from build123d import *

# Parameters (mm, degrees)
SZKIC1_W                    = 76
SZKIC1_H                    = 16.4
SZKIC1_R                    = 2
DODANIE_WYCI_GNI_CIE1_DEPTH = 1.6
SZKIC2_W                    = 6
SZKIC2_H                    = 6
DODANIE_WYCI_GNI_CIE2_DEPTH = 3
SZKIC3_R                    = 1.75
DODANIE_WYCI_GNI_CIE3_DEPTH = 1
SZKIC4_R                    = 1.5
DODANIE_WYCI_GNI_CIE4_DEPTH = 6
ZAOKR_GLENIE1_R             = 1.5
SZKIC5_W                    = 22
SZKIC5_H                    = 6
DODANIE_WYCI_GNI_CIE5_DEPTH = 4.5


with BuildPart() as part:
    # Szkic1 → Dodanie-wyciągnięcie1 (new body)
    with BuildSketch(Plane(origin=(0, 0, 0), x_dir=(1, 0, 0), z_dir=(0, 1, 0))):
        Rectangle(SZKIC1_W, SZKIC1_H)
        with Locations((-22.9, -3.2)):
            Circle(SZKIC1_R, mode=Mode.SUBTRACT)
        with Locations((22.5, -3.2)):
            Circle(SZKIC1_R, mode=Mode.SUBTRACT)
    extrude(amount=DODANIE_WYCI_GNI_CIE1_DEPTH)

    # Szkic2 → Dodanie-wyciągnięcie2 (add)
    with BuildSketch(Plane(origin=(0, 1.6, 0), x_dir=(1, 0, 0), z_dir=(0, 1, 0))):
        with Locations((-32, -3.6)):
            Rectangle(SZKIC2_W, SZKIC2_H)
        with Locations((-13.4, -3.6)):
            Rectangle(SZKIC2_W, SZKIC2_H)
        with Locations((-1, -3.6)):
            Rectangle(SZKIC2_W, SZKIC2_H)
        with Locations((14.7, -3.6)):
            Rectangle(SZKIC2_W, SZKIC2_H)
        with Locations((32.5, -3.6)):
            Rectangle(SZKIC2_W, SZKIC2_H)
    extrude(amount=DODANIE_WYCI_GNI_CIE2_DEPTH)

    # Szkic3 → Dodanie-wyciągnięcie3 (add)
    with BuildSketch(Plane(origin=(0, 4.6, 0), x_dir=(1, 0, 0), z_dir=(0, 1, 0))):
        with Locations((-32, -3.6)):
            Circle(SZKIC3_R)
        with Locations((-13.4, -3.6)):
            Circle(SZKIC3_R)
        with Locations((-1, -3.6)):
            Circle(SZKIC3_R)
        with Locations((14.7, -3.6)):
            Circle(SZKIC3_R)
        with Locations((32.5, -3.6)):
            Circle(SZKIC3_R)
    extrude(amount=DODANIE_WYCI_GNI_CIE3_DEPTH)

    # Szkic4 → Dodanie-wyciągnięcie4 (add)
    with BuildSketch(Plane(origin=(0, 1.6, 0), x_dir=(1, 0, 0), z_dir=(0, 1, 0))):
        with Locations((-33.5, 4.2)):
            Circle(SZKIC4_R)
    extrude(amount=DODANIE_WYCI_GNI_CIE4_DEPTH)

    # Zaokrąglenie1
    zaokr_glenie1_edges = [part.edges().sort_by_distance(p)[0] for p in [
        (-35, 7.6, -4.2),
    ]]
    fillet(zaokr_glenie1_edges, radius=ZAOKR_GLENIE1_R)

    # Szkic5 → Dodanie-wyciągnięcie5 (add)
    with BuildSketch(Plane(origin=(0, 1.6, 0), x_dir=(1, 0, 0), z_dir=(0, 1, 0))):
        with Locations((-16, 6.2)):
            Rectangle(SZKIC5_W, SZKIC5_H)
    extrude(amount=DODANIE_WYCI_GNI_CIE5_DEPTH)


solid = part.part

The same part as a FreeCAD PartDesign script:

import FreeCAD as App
import Part
import Sketcher
from FreeCAD import Vector


def edges_at(feature, points):
    """Names of the edges that pass closest to the given points."""
    edges = feature.Shape.Edges
    near = lambda p: min(range(len(edges)), key=lambda i: edges[i].distToShape(Part.Vertex(*p))[0])
    return sorted({f"Edge{near(p) + 1}" for p in points})


def add_polygon(sketch, points):
    """Adds a closed chain of lines whose ends are joined by coincident constraints."""
    first, n = sketch.GeometryCount, len(points)
    for a, b in zip(points, points[1:] + points[:1]):
        sketch.addGeometry(Part.LineSegment(App.Vector(*a, 0), App.Vector(*b, 0)), False)
    for i in range(n):
        sketch.addConstraint(Sketcher.Constraint("Coincident", first + i, 2, first + (i + 1) % n, 1))

doc = App.newDocument("Part")
body = doc.addObject("PartDesign::Body", "Body")

# Sketch on XZ plane
sketch1 = body.newObject("Sketcher::SketchObject", "Sketch")
sketch1.AttachmentSupport = (doc.getObject("XZ_Plane"), [""])
sketch1.MapMode = "FlatFace"
add_polygon(sketch1, [(-38, -8.2), (-38, 8.2), (38, 8.2), (38, -8.2)])  # lines 0-3
sketch1.addGeometry(Part.Circle(Vector(-22.9, 3.2, 0), Vector(0, 0, 1), 2), False)  # 4
sketch1.addGeometry(Part.Circle(Vector(22.5, 3.2, 0), Vector(0, 0, 1), 2), False)  # 5
sketch1.addConstraint(Sketcher.Constraint("Vertical", 0))
sketch1.addConstraint(Sketcher.Constraint("Horizontal", 1))
sketch1.addConstraint(Sketcher.Constraint("Vertical", 2))
sketch1.addConstraint(Sketcher.Constraint("Horizontal", 3))
sketch1.addConstraint(Sketcher.Constraint("Equal", 4, 5))
sketch1.addConstraint(Sketcher.Constraint("Symmetric", 0, 2, 2, 2, -1, 1))
sketch1.addConstraint(Sketcher.Constraint("Horizontal", 4, 3, 5, 3))
sketch1.addConstraint(Sketcher.Constraint("Diameter", 4, 4.0))
sketch1.addConstraint(Sketcher.Constraint("DistanceX", 1, 1, 1, 2, 76.0))
sketch1.addConstraint(Sketcher.Constraint("DistanceY", 0, 1, 0, 2, 16.4))
sketch1.addConstraint(Sketcher.Constraint("DistanceY", 4, 3, 0, 2, 5.0))
sketch1.addConstraint(Sketcher.Constraint("DistanceX", 4, 3, -1, 1, 22.9))
sketch1.addConstraint(Sketcher.Constraint("DistanceX", -1, 1, 5, 3, 22.5))
pad1 = body.newObject("PartDesign::Pad", "Pad")
pad1.Profile = sketch1
pad1.Length = 1.6
pad1.Reversed = True

# Sketch on XZ plane
sketch2 = body.newObject("Sketcher::SketchObject", "Sketch001")
sketch2.AttachmentSupport = (doc.getObject("XZ_Plane"), [""])
sketch2.MapMode = "FlatFace"
sketch2.AttachmentOffset = App.Placement(Vector(0, 0, -1.6), App.Rotation())
add_polygon(sketch2, [(-35, 0.6), (-35, 6.6), (-29, 6.6), (-29, 0.6)])  # lines 0-3
add_polygon(sketch2, [(-16.4, 0.6), (-16.4, 6.6), (-10.4, 6.6), (-10.4, 0.6)])  # lines 4-7
add_polygon(sketch2, [(-4, 0.6), (-4, 6.6), (2, 6.6), (2, 0.6)])  # lines 8-11
add_polygon(sketch2, [(11.7, 0.6), (11.7, 6.6), (17.7, 6.6), (17.7, 0.6)])  # lines 12-15
add_polygon(sketch2, [(29.5, 0.6), (29.5, 6.6), (35.5, 6.6), (35.5, 0.6)])  # lines 16-19
sketch2.addConstraint(Sketcher.Constraint("Vertical", 0))
sketch2.addConstraint(Sketcher.Constraint("Horizontal", 1))
sketch2.addConstraint(Sketcher.Constraint("Vertical", 2))
sketch2.addConstraint(Sketcher.Constraint("Horizontal", 3))
sketch2.addConstraint(Sketcher.Constraint("Vertical", 4))
sketch2.addConstraint(Sketcher.Constraint("Horizontal", 5))
sketch2.addConstraint(Sketcher.Constraint("Vertical", 6))
sketch2.addConstraint(Sketcher.Constraint("Horizontal", 7))
sketch2.addConstraint(Sketcher.Constraint("Vertical", 8))
sketch2.addConstraint(Sketcher.Constraint("Horizontal", 9))
sketch2.addConstraint(Sketcher.Constraint("Vertical", 10))
sketch2.addConstraint(Sketcher.Constraint("Horizontal", 11))
sketch2.addConstraint(Sketcher.Constraint("Vertical", 12))
sketch2.addConstraint(Sketcher.Constraint("Horizontal", 13))
sketch2.addConstraint(Sketcher.Constraint("Vertical", 14))
sketch2.addConstraint(Sketcher.Constraint("Horizontal", 15))
sketch2.addConstraint(Sketcher.Constraint("Vertical", 16))
sketch2.addConstraint(Sketcher.Constraint("Horizontal", 17))
sketch2.addConstraint(Sketcher.Constraint("Vertical", 18))
sketch2.addConstraint(Sketcher.Constraint("Horizontal", 19))
sketch2.addConstraint(Sketcher.Constraint("Horizontal", 1, 2, 4, 2))
sketch2.addConstraint(Sketcher.Constraint("Horizontal", 3, 2, 6, 2))
sketch2.addConstraint(Sketcher.Constraint("Horizontal", 5, 2, 8, 2))
sketch2.addConstraint(Sketcher.Constraint("Horizontal", 7, 2, 10, 2))
sketch2.addConstraint(Sketcher.Constraint("Horizontal", 9, 2, 12, 2))
sketch2.addConstraint(Sketcher.Constraint("Horizontal", 11, 2, 14, 2))
sketch2.addConstraint(Sketcher.Constraint("Horizontal", 13, 2, 16, 2))
sketch2.addConstraint(Sketcher.Constraint("Horizontal", 15, 2, 18, 2))
sketch2.addConstraint(Sketcher.Constraint("Equal", 3, 5))
sketch2.addConstraint(Sketcher.Constraint("Equal", 7, 9))
sketch2.addConstraint(Sketcher.Constraint("Equal", 11, 13))
sketch2.addConstraint(Sketcher.Constraint("Equal", 15, 17))
sketch2.addConstraint(Sketcher.Constraint("Equal", 19, 0))
sketch2.addConstraint(Sketcher.Constraint("DistanceX", 1, 1, 1, 2, 6.0))
sketch2.addConstraint(Sketcher.Constraint("DistanceX", 0, 2, -1, 1, 35.0))
sketch2.addConstraint(Sketcher.Constraint("DistanceX", 8, 2, -1, 1, 4.0))
sketch2.addConstraint(Sketcher.Constraint("DistanceY", -1, 1, 0, 2, 6.6))
sketch2.addConstraint(Sketcher.Constraint("DistanceX", 4, 2, -1, 1, 16.4))
sketch2.addConstraint(Sketcher.Constraint("DistanceX", -1, 1, 12, 2, 11.7))
sketch2.addConstraint(Sketcher.Constraint("DistanceX", -1, 1, 16, 2, 29.5))
pad2 = body.newObject("PartDesign::Pad", "Pad001")
pad2.Profile = sketch2
pad2.Length = 3
pad2.Reversed = True

# Sketch on XZ plane
sketch3 = body.newObject("Sketcher::SketchObject", "Sketch002")
sketch3.AttachmentSupport = (doc.getObject("XZ_Plane"), [""])
sketch3.MapMode = "FlatFace"
sketch3.AttachmentOffset = App.Placement(Vector(0, 0, -4.6), App.Rotation())
sketch3.addGeometry(Part.Circle(Vector(-32, 3.6, 0), Vector(0, 0, 1), 1.75), False)
sketch3.addGeometry(Part.Circle(Vector(-13.4, 3.6, 0), Vector(0, 0, 1), 1.75), False)
sketch3.addGeometry(Part.Circle(Vector(-1, 3.6, 0), Vector(0, 0, 1), 1.75), False)
sketch3.addGeometry(Part.Circle(Vector(14.7, 3.6, 0), Vector(0, 0, 1), 1.75), False)
sketch3.addGeometry(Part.Circle(Vector(32.5, 3.6, 0), Vector(0, 0, 1), 1.75), False)
sketch3.addConstraint(Sketcher.Constraint("Equal", 0, 1))
sketch3.addConstraint(Sketcher.Constraint("Equal", 1, 2))
sketch3.addConstraint(Sketcher.Constraint("Equal", 2, 3))
sketch3.addConstraint(Sketcher.Constraint("Equal", 3, 4))
sketch3.addConstraint(Sketcher.Constraint("Horizontal", 0, 3, 1, 3))
sketch3.addConstraint(Sketcher.Constraint("Horizontal", 1, 3, 2, 3))
sketch3.addConstraint(Sketcher.Constraint("Horizontal", 2, 3, 3, 3))
sketch3.addConstraint(Sketcher.Constraint("Horizontal", 3, 3, 4, 3))
sketch3.addConstraint(Sketcher.Constraint("Diameter", 0, 3.5))
sketch3.addConstraint(Sketcher.Constraint("DistanceX", 0, 3, -1, 1, 32.0))
sketch3.addConstraint(Sketcher.Constraint("DistanceX", 2, 3, -1, 1, 1.0))
sketch3.addConstraint(Sketcher.Constraint("DistanceY", -1, 1, 0, 3, 3.6))
sketch3.addConstraint(Sketcher.Constraint("DistanceX", 1, 3, -1, 1, 13.4))
sketch3.addConstraint(Sketcher.Constraint("DistanceX", -1, 1, 3, 3, 14.7))
sketch3.addConstraint(Sketcher.Constraint("DistanceX", -1, 1, 4, 3, 32.5))
pad3 = body.newObject("PartDesign::Pad", "Pad002")
pad3.Profile = sketch3
pad3.Length = 1
pad3.Reversed = True

# Sketch on XZ plane
sketch4 = body.newObject("Sketcher::SketchObject", "Sketch003")
sketch4.AttachmentSupport = (doc.getObject("XZ_Plane"), [""])
sketch4.MapMode = "FlatFace"
sketch4.AttachmentOffset = App.Placement(Vector(0, 0, -1.6), App.Rotation())
sketch4.addGeometry(Part.Circle(Vector(-33.5, -4.2, 0), Vector(0, 0, 1), 1.5), False)
sketch4.addConstraint(Sketcher.Constraint("Diameter", 0, 3.0))
sketch4.addConstraint(Sketcher.Constraint("DistanceX", 0, 3, -1, 1, 33.5))
sketch4.addConstraint(Sketcher.Constraint("DistanceY", 0, 3, -1, 1, 4.2))
pad4 = body.newObject("PartDesign::Pad", "Pad003")
pad4.Profile = sketch4
pad4.Length = 6
pad4.Reversed = True
doc.recompute()

fillet = body.newObject("PartDesign::Fillet", "Fillet")
fillet.Base = (pad4, edges_at(pad4, [(-35, 7.6, -4.2)]))
fillet.Radius = 1.5

# Sketch on XZ plane
sketch5 = body.newObject("Sketcher::SketchObject", "Sketch004")
sketch5.AttachmentSupport = (doc.getObject("XZ_Plane"), [""])
sketch5.MapMode = "FlatFace"
sketch5.AttachmentOffset = App.Placement(Vector(0, 0, -1.6), App.Rotation())
add_polygon(sketch5, [(-27, -9.2), (-27, -3.2), (-5, -3.2), (-5, -9.2)])  # lines 0-3
sketch5.addConstraint(Sketcher.Constraint("Vertical", 0))
sketch5.addConstraint(Sketcher.Constraint("Horizontal", 1))
sketch5.addConstraint(Sketcher.Constraint("Vertical", 2))
sketch5.addConstraint(Sketcher.Constraint("Horizontal", 3))
sketch5.addConstraint(Sketcher.Constraint("DistanceX", 1, 1, 1, 2, 22.0))
sketch5.addConstraint(Sketcher.Constraint("DistanceY", 0, 1, 0, 2, 6.0))
sketch5.addConstraint(Sketcher.Constraint("DistanceX", 0, 2, -1, 1, 27.0))
sketch5.addConstraint(Sketcher.Constraint("DistanceY", 0, 2, -1, 1, 3.2))
pad5 = body.newObject("PartDesign::Pad", "Pad004")
pad5.Profile = sketch5
pad5.Length = 4.5
pad5.Reversed = True

doc.recompute()
